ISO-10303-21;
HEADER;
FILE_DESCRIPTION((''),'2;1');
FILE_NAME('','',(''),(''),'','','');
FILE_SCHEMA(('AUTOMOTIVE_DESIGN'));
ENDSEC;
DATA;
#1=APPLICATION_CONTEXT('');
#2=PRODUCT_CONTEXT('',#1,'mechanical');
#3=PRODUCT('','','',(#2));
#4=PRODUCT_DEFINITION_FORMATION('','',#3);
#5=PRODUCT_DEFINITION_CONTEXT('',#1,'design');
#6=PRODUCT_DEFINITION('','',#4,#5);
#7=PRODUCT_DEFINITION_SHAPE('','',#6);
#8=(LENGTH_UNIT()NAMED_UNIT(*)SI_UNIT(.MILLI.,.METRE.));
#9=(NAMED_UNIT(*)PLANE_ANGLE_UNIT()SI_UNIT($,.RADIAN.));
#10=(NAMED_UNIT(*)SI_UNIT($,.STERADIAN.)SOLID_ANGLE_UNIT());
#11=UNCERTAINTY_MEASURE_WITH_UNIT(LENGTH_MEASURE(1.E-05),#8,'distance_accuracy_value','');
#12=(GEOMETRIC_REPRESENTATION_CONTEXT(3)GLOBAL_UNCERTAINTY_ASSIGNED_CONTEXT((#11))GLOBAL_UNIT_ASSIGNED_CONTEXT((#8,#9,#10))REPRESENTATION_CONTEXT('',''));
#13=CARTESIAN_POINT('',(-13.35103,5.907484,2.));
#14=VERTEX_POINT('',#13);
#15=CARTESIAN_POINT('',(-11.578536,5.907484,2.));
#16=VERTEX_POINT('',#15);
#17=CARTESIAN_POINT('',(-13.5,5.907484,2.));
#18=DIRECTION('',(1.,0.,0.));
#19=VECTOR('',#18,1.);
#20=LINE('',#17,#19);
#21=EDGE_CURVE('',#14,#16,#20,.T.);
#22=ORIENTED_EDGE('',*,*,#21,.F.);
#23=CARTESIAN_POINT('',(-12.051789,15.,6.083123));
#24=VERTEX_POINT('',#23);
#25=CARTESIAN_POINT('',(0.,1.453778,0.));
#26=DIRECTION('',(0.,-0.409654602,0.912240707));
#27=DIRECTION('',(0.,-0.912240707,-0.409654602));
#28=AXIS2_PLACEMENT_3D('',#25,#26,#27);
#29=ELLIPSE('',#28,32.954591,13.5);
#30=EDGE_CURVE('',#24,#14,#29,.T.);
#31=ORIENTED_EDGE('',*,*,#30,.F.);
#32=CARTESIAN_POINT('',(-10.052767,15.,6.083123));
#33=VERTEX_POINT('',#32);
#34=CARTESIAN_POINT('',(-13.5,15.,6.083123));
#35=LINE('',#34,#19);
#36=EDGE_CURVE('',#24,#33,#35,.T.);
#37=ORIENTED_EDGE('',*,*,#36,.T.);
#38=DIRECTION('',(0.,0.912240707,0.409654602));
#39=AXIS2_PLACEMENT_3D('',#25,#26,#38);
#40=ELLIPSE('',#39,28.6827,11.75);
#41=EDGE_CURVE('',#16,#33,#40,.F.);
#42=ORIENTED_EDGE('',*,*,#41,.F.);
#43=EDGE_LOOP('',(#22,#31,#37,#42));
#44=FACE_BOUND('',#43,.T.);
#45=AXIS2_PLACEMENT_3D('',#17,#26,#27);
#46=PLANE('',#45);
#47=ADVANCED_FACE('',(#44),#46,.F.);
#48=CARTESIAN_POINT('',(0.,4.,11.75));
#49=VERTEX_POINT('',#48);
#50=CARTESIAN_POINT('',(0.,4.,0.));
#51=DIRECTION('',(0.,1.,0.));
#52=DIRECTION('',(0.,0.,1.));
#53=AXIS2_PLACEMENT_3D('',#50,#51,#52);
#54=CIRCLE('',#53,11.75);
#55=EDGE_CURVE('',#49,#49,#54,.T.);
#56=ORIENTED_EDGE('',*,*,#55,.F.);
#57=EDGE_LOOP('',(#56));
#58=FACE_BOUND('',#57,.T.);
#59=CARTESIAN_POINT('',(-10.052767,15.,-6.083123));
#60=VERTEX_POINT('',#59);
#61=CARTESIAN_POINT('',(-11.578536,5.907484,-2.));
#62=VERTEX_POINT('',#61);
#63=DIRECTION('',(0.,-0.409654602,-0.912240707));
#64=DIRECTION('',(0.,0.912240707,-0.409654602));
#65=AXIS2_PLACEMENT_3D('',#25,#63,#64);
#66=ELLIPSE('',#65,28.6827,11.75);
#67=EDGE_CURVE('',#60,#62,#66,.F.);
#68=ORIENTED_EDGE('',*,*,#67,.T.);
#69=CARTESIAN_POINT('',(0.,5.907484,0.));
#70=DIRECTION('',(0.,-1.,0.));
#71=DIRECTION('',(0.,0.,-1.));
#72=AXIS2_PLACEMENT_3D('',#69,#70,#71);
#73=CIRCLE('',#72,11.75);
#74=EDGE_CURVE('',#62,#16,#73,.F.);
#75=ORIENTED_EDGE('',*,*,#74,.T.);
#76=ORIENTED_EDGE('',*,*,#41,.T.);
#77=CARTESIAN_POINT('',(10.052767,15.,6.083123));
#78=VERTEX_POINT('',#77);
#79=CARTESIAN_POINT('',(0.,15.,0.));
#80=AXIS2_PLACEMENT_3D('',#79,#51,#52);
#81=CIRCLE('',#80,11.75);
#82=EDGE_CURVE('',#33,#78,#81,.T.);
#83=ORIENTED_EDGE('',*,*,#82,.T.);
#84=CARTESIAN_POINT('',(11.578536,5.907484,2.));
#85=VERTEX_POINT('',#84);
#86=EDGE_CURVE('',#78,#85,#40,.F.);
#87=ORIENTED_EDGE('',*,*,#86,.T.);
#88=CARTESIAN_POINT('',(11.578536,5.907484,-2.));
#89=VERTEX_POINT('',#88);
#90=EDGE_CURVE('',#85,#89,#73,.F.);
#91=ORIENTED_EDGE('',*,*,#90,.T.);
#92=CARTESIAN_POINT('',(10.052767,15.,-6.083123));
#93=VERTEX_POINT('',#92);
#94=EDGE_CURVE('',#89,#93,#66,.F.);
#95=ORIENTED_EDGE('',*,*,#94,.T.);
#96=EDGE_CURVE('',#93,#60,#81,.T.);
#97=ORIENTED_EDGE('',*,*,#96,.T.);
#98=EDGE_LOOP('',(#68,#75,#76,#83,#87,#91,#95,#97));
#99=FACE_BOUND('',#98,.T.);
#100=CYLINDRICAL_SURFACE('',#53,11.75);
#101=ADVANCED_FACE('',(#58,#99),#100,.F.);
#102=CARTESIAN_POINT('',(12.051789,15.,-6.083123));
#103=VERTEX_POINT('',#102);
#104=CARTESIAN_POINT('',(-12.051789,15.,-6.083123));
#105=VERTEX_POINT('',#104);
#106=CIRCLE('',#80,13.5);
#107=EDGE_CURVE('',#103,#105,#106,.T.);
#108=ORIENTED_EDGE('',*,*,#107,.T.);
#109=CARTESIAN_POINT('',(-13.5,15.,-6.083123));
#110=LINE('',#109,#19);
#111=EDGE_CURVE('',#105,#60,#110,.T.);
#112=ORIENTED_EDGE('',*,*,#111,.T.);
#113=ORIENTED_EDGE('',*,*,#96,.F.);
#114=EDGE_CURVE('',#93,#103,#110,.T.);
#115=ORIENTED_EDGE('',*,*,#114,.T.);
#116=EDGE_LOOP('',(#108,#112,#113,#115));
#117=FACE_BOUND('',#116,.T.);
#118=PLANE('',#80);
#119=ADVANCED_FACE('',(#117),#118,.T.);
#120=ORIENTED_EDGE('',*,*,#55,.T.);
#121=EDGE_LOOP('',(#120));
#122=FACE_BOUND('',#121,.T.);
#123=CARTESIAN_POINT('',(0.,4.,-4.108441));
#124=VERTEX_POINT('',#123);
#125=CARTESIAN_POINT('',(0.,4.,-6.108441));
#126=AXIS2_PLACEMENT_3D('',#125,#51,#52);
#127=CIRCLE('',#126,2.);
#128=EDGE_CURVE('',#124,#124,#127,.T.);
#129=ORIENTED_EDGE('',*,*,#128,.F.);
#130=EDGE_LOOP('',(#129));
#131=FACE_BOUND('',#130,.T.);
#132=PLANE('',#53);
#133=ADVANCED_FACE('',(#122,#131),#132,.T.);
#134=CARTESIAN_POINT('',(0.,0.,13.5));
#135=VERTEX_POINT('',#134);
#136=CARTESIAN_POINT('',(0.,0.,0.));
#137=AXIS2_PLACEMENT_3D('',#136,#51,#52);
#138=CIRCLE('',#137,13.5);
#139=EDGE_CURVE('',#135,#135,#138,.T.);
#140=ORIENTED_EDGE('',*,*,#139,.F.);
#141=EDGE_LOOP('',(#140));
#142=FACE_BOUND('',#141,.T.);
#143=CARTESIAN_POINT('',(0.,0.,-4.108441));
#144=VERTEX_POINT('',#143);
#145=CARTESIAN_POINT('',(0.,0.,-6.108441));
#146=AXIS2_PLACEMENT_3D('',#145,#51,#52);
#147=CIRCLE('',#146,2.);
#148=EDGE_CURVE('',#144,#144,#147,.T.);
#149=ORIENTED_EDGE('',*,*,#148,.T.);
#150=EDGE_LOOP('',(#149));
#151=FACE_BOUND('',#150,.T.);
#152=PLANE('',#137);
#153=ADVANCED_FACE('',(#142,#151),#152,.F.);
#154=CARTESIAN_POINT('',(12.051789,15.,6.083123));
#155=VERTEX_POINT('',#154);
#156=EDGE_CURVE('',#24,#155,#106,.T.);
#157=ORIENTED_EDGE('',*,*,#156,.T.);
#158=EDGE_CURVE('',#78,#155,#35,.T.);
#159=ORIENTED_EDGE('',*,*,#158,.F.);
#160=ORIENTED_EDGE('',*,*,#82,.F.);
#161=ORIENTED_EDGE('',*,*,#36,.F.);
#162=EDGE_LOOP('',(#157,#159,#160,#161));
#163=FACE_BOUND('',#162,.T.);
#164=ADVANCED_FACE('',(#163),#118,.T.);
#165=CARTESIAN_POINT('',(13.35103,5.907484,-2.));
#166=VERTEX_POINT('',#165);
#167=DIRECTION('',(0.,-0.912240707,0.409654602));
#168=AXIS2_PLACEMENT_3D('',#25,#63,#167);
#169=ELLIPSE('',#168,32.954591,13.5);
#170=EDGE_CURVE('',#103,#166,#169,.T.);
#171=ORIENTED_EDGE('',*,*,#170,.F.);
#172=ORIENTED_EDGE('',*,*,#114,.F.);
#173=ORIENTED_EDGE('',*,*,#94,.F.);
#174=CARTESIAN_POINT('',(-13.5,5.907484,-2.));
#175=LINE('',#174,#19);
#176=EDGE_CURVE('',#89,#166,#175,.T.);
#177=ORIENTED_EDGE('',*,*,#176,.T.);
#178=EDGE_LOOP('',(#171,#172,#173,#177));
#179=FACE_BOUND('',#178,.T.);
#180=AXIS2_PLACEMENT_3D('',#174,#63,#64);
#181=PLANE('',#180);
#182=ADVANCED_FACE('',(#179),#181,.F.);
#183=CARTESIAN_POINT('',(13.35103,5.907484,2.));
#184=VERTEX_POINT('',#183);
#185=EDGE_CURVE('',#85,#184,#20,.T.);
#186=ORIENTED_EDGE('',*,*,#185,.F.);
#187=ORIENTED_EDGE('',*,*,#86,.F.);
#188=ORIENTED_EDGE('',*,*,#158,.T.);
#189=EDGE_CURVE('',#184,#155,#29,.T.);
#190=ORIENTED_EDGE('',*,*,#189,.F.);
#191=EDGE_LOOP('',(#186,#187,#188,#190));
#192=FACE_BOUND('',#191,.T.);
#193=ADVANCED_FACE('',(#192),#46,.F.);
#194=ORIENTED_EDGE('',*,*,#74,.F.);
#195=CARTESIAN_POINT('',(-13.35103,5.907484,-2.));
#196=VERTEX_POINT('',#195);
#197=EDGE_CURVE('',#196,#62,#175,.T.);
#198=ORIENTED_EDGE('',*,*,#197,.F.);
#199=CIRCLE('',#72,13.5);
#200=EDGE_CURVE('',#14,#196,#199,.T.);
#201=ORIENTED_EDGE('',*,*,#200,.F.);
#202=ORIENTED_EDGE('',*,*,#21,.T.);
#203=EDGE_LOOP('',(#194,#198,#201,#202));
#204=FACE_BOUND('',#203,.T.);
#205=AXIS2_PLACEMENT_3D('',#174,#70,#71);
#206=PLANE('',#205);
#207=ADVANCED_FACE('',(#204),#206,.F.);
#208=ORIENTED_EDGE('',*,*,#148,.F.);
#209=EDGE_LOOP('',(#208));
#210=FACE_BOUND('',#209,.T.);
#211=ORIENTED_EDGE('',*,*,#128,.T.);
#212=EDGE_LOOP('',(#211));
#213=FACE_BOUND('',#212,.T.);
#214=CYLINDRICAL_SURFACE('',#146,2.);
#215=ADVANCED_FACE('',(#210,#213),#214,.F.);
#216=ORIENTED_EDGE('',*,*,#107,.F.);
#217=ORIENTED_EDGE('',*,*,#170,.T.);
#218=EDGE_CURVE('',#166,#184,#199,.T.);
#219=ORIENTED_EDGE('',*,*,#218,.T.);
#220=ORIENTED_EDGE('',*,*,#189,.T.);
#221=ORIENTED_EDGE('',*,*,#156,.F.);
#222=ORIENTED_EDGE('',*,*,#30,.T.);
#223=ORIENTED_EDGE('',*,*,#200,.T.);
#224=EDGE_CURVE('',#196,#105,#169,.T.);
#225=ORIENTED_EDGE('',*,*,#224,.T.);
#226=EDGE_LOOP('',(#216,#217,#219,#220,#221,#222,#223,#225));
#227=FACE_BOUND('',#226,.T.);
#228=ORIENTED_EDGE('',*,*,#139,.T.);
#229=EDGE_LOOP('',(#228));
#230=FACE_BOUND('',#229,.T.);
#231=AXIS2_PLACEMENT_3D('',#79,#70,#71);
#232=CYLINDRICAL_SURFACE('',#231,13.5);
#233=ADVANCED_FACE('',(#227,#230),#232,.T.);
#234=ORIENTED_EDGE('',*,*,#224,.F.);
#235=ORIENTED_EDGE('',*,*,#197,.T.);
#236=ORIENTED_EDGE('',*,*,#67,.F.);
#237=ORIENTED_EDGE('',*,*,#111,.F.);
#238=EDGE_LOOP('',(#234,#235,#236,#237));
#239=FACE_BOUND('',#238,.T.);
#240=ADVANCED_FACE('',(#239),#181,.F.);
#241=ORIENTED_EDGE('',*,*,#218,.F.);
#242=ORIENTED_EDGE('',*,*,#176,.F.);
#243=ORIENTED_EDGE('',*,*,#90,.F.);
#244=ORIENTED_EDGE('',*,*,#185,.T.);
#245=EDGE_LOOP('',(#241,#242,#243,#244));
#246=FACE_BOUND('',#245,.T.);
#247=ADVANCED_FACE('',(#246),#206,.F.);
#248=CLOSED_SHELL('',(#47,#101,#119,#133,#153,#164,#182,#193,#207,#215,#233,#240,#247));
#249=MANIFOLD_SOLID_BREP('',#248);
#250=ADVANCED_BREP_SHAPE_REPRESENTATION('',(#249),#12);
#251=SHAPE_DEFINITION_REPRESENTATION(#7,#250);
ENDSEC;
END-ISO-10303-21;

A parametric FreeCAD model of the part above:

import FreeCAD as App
import Part
import Sketcher

V = App.Vector
Q = App.Units.Quantity

doc = App.newDocument("Part")
params = doc.addObject("Spreadsheet::Sheet", "Params")
for row, (alias, value) in enumerate([
    ("sketch1_diameter", "27 mm"),
    ("pad1_length", "15 mm"),
    ("sketch2_diameter", "23.5 mm"),
    ("pocket1_length", "11 mm"),
    ("sketch3_diameter", "4 mm"),
    ("sketch4_height", "4 mm"),
], start=1):
    params.set(f"A{row}", alias)
    params.set(f"B{row}", "=" + value)
    params.setAlias(f"B{row}", alias)

body = doc.addObject("PartDesign::Body", "Body")

sketch1 = doc.addObject("Sketcher::SketchObject", "Sketch")
body.addObject(sketch1)
sketch1.AttachmentSupport = (doc.XZ_Plane, [""])
sketch1.MapMode = "FlatFace"
sketch1.addGeometry(Part.Circle(V(0, 0, 0), V(0, 0, 1), 14), False)
sketch1.addConstraint(Sketcher.Constraint("Coincident", 0, 3, -1, 1))
sketch1.addConstraint(Sketcher.Constraint("Diameter", 0, Q("27 mm")))
sketch1.setExpression("Constraints[1]", "Params.sketch1_diameter")
pad1 = doc.addObject("PartDesign::Pad", "Pad")
body.addObject(pad1)
pad1.Profile = sketch1
pad1.setExpression("Length", "Params.pad1_length")
pad1.Reversed = True

sketch2 = doc.addObject("Sketcher::SketchObject", "Sketch001")
body.addObject(sketch2)
sketch2.AttachmentSupport = (doc.XZ_Plane, [""])
sketch2.MapMode = "FlatFace"
sketch2.AttachmentOffset = App.Placement(V(0, 0, -15), App.Rotation())
sketch2.addGeometry(Part.Circle(V(0, 0, 0), V(0, 0, 1), 12), False)
sketch2.addConstraint(Sketcher.Constraint("Coincident", 0, 3, -1, 1))
sketch2.addConstraint(Sketcher.Constraint("Diameter", 0, Q("23.5 mm")))
sketch2.setExpression("Constraints[1]", "Params.sketch2_diameter")
pocket1 = doc.addObject("PartDesign::Pocket", "Pocket")
body.addObject(pocket1)
pocket1.Profile = sketch2
pocket1.setExpression("Length", "Params.pocket1_length")
pocket1.Reversed = True

sketch3 = doc.addObject("Sketcher::SketchObject", "Sketch002")
body.addObject(sketch3)
sketch3.AttachmentSupport = (doc.XZ_Plane, [""])
sketch3.MapMode = "FlatFace"
sketch3.AttachmentOffset = App.Placement(V(0, 0, -4), App.Rotation())
sketch3.addGeometry(Part.Circle(V(0, -6.1, 0), V(0, 0, 1), 2), False)
sketch3.addConstraint(Sketcher.Constraint("PointOnObject", 0, 3, -2))
sketch3.addConstraint(Sketcher.Constraint("Diameter", 0, Q("4 mm")))
sketch3.addConstraint(Sketcher.Constraint("DistanceY", 0, 3, -1, 1, Q("6.108441 mm")))
sketch3.setExpression("Constraints[1]", "Params.sketch3_diameter")
pocket2 = doc.addObject("PartDesign::Pocket", "Pocket001")
body.addObject(pocket2)
pocket2.Profile = sketch3
pocket2.Type = "ThroughAll"
pocket2.Reversed = True

sketch4 = doc.addObject("Sketcher::SketchObject", "Sketch003")
body.addObject(sketch4)
sketch4.AttachmentSupport = (doc.YZ_Plane, [""])
sketch4.MapMode = "FlatFace"
sketch4.addGeometry(Part.LineSegment(V(5.9, 2, 0), V(5.9, -2, 0)), False)
sketch4.addGeometry(Part.LineSegment(V(5.9, -2, 0), V(15, -6.1, 0)), False)
sketch4.addGeometry(Part.LineSegment(V(15, -6.1, 0), V(15, 6.1, 0)), False)
sketch4.addGeometry(Part.LineSegment(V(15, 6.1, 0), V(5.9, 2, 0)), False)
sketch4.addConstraint(Sketcher.Constraint("Coincident", 0, 2, 1, 1))
sketch4.addConstraint(Sketcher.Constraint("Coincident", 1, 2, 2, 1))
sketch4.addConstraint(Sketcher.Constraint("Coincident", 2, 2, 3, 1))
sketch4.addConstraint(Sketcher.Constraint("Coincident", 3, 2, 0, 1))
sketch4.addConstraint(Sketcher.Constraint("Vertical", 0))
sketch4.addConstraint(Sketcher.Constraint("Vertical", 2))
sketch4.addConstraint(Sketcher.Constraint("Equal", 1, 3))
sketch4.addConstraint(Sketcher.Constraint("DistanceY", 0, 2, 0, 1, Q("4 mm")))
sketch4.addConstraint(Sketcher.Constraint("DistanceY", 0, 2, -1, 1, Q("2 mm")))
sketch4.addConstraint(Sketcher.Constraint("DistanceX", -1, 1, 1, 2, Q("15 mm")))
sketch4.addConstraint(Sketcher.Constraint("DistanceY", 2, 1, 2, 2, Q("12.166246 mm")))
sketch4.addConstraint(Sketcher.Constraint("Distance", 1, Q("9.967233 mm")))
sketch4.setExpression("Constraints[7]", "Params.sketch4_height")
pocket3 = doc.addObject("PartDesign::Pocket", "Pocket002")
body.addObject(pocket3)
pocket3.Profile = sketch4
pocket3.Type = "ThroughAll"
pocket3.Midplane = True

doc.recompute()
